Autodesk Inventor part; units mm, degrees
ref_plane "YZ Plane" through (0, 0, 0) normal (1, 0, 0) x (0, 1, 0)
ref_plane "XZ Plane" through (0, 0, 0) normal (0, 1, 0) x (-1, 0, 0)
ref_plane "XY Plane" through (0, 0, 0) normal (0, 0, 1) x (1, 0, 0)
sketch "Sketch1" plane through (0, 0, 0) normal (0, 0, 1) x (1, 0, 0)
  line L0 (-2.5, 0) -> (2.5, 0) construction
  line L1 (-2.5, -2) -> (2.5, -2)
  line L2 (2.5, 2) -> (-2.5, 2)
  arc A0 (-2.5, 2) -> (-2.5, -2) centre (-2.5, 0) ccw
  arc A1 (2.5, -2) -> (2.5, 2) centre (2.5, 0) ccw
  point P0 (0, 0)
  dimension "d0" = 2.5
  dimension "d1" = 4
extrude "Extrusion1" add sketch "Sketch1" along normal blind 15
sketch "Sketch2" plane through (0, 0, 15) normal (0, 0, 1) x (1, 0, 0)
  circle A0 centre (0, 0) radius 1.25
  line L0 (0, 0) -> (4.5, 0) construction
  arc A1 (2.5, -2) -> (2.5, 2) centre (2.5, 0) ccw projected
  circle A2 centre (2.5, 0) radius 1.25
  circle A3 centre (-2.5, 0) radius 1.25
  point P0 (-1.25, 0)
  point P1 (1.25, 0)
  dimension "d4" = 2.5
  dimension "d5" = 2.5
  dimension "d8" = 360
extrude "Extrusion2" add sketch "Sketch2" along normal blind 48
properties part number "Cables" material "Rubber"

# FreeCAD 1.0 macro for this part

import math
import FreeCAD as App
import Part
import Sketcher
from FreeCAD import Vector

doc = App.newDocument("Part")
params = doc.addObject("Spreadsheet::Sheet", "Params")
for row, (alias, value) in enumerate([
    ("sketch1_radius", "2 mm"),
    ("pad1_length", "15 mm"),
    ("sketch2_diameter", "2.5 mm"),
    ("pad2_length", "48 mm"),
], start=1):
    params.set(f"A{row}", alias)
    params.set(f"B{row}", "=" + value)
    params.setAlias(f"B{row}", alias)

body = doc.addObject("PartDesign::Body", "Body")

# Sketch on XY plane
sketch1 = body.newObject("Sketcher::SketchObject", "Sketch")
sketch1.AttachmentSupport = (doc.getObject("XY_Plane"), [""])
sketch1.MapMode = "FlatFace"
sketch1.addGeometry([
    Part.ArcOfCircle(Part.Circle(Vector(-2.5, 0, 0), Vector(0, 0, 1), 2), math.radians(90), math.radians(270)),
    Part.LineSegment(Vector(-2.5, -2, 0), Vector(2.5, -2, 0)),
    Part.ArcOfCircle(Part.Circle(Vector(2.5, 0, 0), Vector(0, 0, 1), 2), math.radians(-90), math.radians(90)),
    Part.LineSegment(Vector(2.5, 2, 0), Vector(-2.5, 2, 0)),
], False)
sketch1.addConstraint([
    Sketcher.Constraint("Tangent", 0, 2, 1, 1),
    Sketcher.Constraint("Tangent", 1, 2, 2, 1),
    Sketcher.Constraint("Tangent", 2, 2, 3, 1),
    Sketcher.Constraint("Tangent", 3, 2, 0, 1),
    Sketcher.Constraint("Horizontal", 1),
    Sketcher.Constraint("Horizontal", 3),
    Sketcher.Constraint("Symmetric", 0, 3, 2, 3, -1, 1),
    Sketcher.Constraint("Radius", 0, 2.0),
    Sketcher.Constraint("DistanceX", 0, 3, -1, 1, 2.5),
])
sketch1.setExpression("Constraints[7]", "Params.sketch1_radius")
pad1 = body.newObject("PartDesign::Pad", "Pad")
pad1.Profile = sketch1
pad1.setExpression("Length", "Params.pad1_length")

# Sketch on XY plane
sketch2 = body.newObject("Sketcher::SketchObject", "Sketch001")
sketch2.AttachmentSupport = (doc.getObject("XY_Plane"), [""])
sketch2.MapMode = "FlatFace"
sketch2.AttachmentOffset = App.Placement(Vector(0, 0, 15), App.Rotation())
sketch2.addGeometry([
    Part.ArcOfCircle(Part.Circle(Vector(0, 0, 0), Vector(0, 0, 1), 1.2), math.radians(180), math.radians(360)),
    Part.ArcOfCircle(Part.Circle(Vector(0, 0, 0), Vector(0, 0, 1), 1.2), math.radians(0), math.radians(180)),
    Part.Circle(Vector(-2.5, 0, 0), Vector(0, 0, 1), 1.2),
    Part.Circle(Vector(2.5, 0, 0), Vector(0, 0, 1), 1.2),
], False)
sketch2.addConstraint([
    Sketcher.Constraint("Tangent", 0, 1, 1, 2),
    Sketcher.Constraint("Coincident", 1, 1, 0, 2),
    Sketcher.Constraint("Coincident", 0, 3, -1, 1),
    Sketcher.Constraint("Equal", 1, 2),
    Sketcher.Constraint("Equal", 2, 3),
    Sketcher.Constraint("Symmetric", 2, 3, 3, 3, -1, 1),
    Sketcher.Constraint("PointOnObject", 2, 3, -1),
    Sketcher.Constraint("PointOnObject", 0, 1, -1),
    Sketcher.Constraint("PointOnObject", 1, 1, -1),
    Sketcher.Constraint("Diameter", 2, 2.5),
    Sketcher.Constraint("DistanceX", 2, 3, -1, 1, 2.5),
])
sketch2.setExpression("Constraints[9]", "Params.sketch2_diameter")
pad2 = body.newObject("PartDesign::Pad", "Pad001")
pad2.Profile = sketch2
pad2.setExpression("Length", "Params.pad2_length")

doc.recompute()
